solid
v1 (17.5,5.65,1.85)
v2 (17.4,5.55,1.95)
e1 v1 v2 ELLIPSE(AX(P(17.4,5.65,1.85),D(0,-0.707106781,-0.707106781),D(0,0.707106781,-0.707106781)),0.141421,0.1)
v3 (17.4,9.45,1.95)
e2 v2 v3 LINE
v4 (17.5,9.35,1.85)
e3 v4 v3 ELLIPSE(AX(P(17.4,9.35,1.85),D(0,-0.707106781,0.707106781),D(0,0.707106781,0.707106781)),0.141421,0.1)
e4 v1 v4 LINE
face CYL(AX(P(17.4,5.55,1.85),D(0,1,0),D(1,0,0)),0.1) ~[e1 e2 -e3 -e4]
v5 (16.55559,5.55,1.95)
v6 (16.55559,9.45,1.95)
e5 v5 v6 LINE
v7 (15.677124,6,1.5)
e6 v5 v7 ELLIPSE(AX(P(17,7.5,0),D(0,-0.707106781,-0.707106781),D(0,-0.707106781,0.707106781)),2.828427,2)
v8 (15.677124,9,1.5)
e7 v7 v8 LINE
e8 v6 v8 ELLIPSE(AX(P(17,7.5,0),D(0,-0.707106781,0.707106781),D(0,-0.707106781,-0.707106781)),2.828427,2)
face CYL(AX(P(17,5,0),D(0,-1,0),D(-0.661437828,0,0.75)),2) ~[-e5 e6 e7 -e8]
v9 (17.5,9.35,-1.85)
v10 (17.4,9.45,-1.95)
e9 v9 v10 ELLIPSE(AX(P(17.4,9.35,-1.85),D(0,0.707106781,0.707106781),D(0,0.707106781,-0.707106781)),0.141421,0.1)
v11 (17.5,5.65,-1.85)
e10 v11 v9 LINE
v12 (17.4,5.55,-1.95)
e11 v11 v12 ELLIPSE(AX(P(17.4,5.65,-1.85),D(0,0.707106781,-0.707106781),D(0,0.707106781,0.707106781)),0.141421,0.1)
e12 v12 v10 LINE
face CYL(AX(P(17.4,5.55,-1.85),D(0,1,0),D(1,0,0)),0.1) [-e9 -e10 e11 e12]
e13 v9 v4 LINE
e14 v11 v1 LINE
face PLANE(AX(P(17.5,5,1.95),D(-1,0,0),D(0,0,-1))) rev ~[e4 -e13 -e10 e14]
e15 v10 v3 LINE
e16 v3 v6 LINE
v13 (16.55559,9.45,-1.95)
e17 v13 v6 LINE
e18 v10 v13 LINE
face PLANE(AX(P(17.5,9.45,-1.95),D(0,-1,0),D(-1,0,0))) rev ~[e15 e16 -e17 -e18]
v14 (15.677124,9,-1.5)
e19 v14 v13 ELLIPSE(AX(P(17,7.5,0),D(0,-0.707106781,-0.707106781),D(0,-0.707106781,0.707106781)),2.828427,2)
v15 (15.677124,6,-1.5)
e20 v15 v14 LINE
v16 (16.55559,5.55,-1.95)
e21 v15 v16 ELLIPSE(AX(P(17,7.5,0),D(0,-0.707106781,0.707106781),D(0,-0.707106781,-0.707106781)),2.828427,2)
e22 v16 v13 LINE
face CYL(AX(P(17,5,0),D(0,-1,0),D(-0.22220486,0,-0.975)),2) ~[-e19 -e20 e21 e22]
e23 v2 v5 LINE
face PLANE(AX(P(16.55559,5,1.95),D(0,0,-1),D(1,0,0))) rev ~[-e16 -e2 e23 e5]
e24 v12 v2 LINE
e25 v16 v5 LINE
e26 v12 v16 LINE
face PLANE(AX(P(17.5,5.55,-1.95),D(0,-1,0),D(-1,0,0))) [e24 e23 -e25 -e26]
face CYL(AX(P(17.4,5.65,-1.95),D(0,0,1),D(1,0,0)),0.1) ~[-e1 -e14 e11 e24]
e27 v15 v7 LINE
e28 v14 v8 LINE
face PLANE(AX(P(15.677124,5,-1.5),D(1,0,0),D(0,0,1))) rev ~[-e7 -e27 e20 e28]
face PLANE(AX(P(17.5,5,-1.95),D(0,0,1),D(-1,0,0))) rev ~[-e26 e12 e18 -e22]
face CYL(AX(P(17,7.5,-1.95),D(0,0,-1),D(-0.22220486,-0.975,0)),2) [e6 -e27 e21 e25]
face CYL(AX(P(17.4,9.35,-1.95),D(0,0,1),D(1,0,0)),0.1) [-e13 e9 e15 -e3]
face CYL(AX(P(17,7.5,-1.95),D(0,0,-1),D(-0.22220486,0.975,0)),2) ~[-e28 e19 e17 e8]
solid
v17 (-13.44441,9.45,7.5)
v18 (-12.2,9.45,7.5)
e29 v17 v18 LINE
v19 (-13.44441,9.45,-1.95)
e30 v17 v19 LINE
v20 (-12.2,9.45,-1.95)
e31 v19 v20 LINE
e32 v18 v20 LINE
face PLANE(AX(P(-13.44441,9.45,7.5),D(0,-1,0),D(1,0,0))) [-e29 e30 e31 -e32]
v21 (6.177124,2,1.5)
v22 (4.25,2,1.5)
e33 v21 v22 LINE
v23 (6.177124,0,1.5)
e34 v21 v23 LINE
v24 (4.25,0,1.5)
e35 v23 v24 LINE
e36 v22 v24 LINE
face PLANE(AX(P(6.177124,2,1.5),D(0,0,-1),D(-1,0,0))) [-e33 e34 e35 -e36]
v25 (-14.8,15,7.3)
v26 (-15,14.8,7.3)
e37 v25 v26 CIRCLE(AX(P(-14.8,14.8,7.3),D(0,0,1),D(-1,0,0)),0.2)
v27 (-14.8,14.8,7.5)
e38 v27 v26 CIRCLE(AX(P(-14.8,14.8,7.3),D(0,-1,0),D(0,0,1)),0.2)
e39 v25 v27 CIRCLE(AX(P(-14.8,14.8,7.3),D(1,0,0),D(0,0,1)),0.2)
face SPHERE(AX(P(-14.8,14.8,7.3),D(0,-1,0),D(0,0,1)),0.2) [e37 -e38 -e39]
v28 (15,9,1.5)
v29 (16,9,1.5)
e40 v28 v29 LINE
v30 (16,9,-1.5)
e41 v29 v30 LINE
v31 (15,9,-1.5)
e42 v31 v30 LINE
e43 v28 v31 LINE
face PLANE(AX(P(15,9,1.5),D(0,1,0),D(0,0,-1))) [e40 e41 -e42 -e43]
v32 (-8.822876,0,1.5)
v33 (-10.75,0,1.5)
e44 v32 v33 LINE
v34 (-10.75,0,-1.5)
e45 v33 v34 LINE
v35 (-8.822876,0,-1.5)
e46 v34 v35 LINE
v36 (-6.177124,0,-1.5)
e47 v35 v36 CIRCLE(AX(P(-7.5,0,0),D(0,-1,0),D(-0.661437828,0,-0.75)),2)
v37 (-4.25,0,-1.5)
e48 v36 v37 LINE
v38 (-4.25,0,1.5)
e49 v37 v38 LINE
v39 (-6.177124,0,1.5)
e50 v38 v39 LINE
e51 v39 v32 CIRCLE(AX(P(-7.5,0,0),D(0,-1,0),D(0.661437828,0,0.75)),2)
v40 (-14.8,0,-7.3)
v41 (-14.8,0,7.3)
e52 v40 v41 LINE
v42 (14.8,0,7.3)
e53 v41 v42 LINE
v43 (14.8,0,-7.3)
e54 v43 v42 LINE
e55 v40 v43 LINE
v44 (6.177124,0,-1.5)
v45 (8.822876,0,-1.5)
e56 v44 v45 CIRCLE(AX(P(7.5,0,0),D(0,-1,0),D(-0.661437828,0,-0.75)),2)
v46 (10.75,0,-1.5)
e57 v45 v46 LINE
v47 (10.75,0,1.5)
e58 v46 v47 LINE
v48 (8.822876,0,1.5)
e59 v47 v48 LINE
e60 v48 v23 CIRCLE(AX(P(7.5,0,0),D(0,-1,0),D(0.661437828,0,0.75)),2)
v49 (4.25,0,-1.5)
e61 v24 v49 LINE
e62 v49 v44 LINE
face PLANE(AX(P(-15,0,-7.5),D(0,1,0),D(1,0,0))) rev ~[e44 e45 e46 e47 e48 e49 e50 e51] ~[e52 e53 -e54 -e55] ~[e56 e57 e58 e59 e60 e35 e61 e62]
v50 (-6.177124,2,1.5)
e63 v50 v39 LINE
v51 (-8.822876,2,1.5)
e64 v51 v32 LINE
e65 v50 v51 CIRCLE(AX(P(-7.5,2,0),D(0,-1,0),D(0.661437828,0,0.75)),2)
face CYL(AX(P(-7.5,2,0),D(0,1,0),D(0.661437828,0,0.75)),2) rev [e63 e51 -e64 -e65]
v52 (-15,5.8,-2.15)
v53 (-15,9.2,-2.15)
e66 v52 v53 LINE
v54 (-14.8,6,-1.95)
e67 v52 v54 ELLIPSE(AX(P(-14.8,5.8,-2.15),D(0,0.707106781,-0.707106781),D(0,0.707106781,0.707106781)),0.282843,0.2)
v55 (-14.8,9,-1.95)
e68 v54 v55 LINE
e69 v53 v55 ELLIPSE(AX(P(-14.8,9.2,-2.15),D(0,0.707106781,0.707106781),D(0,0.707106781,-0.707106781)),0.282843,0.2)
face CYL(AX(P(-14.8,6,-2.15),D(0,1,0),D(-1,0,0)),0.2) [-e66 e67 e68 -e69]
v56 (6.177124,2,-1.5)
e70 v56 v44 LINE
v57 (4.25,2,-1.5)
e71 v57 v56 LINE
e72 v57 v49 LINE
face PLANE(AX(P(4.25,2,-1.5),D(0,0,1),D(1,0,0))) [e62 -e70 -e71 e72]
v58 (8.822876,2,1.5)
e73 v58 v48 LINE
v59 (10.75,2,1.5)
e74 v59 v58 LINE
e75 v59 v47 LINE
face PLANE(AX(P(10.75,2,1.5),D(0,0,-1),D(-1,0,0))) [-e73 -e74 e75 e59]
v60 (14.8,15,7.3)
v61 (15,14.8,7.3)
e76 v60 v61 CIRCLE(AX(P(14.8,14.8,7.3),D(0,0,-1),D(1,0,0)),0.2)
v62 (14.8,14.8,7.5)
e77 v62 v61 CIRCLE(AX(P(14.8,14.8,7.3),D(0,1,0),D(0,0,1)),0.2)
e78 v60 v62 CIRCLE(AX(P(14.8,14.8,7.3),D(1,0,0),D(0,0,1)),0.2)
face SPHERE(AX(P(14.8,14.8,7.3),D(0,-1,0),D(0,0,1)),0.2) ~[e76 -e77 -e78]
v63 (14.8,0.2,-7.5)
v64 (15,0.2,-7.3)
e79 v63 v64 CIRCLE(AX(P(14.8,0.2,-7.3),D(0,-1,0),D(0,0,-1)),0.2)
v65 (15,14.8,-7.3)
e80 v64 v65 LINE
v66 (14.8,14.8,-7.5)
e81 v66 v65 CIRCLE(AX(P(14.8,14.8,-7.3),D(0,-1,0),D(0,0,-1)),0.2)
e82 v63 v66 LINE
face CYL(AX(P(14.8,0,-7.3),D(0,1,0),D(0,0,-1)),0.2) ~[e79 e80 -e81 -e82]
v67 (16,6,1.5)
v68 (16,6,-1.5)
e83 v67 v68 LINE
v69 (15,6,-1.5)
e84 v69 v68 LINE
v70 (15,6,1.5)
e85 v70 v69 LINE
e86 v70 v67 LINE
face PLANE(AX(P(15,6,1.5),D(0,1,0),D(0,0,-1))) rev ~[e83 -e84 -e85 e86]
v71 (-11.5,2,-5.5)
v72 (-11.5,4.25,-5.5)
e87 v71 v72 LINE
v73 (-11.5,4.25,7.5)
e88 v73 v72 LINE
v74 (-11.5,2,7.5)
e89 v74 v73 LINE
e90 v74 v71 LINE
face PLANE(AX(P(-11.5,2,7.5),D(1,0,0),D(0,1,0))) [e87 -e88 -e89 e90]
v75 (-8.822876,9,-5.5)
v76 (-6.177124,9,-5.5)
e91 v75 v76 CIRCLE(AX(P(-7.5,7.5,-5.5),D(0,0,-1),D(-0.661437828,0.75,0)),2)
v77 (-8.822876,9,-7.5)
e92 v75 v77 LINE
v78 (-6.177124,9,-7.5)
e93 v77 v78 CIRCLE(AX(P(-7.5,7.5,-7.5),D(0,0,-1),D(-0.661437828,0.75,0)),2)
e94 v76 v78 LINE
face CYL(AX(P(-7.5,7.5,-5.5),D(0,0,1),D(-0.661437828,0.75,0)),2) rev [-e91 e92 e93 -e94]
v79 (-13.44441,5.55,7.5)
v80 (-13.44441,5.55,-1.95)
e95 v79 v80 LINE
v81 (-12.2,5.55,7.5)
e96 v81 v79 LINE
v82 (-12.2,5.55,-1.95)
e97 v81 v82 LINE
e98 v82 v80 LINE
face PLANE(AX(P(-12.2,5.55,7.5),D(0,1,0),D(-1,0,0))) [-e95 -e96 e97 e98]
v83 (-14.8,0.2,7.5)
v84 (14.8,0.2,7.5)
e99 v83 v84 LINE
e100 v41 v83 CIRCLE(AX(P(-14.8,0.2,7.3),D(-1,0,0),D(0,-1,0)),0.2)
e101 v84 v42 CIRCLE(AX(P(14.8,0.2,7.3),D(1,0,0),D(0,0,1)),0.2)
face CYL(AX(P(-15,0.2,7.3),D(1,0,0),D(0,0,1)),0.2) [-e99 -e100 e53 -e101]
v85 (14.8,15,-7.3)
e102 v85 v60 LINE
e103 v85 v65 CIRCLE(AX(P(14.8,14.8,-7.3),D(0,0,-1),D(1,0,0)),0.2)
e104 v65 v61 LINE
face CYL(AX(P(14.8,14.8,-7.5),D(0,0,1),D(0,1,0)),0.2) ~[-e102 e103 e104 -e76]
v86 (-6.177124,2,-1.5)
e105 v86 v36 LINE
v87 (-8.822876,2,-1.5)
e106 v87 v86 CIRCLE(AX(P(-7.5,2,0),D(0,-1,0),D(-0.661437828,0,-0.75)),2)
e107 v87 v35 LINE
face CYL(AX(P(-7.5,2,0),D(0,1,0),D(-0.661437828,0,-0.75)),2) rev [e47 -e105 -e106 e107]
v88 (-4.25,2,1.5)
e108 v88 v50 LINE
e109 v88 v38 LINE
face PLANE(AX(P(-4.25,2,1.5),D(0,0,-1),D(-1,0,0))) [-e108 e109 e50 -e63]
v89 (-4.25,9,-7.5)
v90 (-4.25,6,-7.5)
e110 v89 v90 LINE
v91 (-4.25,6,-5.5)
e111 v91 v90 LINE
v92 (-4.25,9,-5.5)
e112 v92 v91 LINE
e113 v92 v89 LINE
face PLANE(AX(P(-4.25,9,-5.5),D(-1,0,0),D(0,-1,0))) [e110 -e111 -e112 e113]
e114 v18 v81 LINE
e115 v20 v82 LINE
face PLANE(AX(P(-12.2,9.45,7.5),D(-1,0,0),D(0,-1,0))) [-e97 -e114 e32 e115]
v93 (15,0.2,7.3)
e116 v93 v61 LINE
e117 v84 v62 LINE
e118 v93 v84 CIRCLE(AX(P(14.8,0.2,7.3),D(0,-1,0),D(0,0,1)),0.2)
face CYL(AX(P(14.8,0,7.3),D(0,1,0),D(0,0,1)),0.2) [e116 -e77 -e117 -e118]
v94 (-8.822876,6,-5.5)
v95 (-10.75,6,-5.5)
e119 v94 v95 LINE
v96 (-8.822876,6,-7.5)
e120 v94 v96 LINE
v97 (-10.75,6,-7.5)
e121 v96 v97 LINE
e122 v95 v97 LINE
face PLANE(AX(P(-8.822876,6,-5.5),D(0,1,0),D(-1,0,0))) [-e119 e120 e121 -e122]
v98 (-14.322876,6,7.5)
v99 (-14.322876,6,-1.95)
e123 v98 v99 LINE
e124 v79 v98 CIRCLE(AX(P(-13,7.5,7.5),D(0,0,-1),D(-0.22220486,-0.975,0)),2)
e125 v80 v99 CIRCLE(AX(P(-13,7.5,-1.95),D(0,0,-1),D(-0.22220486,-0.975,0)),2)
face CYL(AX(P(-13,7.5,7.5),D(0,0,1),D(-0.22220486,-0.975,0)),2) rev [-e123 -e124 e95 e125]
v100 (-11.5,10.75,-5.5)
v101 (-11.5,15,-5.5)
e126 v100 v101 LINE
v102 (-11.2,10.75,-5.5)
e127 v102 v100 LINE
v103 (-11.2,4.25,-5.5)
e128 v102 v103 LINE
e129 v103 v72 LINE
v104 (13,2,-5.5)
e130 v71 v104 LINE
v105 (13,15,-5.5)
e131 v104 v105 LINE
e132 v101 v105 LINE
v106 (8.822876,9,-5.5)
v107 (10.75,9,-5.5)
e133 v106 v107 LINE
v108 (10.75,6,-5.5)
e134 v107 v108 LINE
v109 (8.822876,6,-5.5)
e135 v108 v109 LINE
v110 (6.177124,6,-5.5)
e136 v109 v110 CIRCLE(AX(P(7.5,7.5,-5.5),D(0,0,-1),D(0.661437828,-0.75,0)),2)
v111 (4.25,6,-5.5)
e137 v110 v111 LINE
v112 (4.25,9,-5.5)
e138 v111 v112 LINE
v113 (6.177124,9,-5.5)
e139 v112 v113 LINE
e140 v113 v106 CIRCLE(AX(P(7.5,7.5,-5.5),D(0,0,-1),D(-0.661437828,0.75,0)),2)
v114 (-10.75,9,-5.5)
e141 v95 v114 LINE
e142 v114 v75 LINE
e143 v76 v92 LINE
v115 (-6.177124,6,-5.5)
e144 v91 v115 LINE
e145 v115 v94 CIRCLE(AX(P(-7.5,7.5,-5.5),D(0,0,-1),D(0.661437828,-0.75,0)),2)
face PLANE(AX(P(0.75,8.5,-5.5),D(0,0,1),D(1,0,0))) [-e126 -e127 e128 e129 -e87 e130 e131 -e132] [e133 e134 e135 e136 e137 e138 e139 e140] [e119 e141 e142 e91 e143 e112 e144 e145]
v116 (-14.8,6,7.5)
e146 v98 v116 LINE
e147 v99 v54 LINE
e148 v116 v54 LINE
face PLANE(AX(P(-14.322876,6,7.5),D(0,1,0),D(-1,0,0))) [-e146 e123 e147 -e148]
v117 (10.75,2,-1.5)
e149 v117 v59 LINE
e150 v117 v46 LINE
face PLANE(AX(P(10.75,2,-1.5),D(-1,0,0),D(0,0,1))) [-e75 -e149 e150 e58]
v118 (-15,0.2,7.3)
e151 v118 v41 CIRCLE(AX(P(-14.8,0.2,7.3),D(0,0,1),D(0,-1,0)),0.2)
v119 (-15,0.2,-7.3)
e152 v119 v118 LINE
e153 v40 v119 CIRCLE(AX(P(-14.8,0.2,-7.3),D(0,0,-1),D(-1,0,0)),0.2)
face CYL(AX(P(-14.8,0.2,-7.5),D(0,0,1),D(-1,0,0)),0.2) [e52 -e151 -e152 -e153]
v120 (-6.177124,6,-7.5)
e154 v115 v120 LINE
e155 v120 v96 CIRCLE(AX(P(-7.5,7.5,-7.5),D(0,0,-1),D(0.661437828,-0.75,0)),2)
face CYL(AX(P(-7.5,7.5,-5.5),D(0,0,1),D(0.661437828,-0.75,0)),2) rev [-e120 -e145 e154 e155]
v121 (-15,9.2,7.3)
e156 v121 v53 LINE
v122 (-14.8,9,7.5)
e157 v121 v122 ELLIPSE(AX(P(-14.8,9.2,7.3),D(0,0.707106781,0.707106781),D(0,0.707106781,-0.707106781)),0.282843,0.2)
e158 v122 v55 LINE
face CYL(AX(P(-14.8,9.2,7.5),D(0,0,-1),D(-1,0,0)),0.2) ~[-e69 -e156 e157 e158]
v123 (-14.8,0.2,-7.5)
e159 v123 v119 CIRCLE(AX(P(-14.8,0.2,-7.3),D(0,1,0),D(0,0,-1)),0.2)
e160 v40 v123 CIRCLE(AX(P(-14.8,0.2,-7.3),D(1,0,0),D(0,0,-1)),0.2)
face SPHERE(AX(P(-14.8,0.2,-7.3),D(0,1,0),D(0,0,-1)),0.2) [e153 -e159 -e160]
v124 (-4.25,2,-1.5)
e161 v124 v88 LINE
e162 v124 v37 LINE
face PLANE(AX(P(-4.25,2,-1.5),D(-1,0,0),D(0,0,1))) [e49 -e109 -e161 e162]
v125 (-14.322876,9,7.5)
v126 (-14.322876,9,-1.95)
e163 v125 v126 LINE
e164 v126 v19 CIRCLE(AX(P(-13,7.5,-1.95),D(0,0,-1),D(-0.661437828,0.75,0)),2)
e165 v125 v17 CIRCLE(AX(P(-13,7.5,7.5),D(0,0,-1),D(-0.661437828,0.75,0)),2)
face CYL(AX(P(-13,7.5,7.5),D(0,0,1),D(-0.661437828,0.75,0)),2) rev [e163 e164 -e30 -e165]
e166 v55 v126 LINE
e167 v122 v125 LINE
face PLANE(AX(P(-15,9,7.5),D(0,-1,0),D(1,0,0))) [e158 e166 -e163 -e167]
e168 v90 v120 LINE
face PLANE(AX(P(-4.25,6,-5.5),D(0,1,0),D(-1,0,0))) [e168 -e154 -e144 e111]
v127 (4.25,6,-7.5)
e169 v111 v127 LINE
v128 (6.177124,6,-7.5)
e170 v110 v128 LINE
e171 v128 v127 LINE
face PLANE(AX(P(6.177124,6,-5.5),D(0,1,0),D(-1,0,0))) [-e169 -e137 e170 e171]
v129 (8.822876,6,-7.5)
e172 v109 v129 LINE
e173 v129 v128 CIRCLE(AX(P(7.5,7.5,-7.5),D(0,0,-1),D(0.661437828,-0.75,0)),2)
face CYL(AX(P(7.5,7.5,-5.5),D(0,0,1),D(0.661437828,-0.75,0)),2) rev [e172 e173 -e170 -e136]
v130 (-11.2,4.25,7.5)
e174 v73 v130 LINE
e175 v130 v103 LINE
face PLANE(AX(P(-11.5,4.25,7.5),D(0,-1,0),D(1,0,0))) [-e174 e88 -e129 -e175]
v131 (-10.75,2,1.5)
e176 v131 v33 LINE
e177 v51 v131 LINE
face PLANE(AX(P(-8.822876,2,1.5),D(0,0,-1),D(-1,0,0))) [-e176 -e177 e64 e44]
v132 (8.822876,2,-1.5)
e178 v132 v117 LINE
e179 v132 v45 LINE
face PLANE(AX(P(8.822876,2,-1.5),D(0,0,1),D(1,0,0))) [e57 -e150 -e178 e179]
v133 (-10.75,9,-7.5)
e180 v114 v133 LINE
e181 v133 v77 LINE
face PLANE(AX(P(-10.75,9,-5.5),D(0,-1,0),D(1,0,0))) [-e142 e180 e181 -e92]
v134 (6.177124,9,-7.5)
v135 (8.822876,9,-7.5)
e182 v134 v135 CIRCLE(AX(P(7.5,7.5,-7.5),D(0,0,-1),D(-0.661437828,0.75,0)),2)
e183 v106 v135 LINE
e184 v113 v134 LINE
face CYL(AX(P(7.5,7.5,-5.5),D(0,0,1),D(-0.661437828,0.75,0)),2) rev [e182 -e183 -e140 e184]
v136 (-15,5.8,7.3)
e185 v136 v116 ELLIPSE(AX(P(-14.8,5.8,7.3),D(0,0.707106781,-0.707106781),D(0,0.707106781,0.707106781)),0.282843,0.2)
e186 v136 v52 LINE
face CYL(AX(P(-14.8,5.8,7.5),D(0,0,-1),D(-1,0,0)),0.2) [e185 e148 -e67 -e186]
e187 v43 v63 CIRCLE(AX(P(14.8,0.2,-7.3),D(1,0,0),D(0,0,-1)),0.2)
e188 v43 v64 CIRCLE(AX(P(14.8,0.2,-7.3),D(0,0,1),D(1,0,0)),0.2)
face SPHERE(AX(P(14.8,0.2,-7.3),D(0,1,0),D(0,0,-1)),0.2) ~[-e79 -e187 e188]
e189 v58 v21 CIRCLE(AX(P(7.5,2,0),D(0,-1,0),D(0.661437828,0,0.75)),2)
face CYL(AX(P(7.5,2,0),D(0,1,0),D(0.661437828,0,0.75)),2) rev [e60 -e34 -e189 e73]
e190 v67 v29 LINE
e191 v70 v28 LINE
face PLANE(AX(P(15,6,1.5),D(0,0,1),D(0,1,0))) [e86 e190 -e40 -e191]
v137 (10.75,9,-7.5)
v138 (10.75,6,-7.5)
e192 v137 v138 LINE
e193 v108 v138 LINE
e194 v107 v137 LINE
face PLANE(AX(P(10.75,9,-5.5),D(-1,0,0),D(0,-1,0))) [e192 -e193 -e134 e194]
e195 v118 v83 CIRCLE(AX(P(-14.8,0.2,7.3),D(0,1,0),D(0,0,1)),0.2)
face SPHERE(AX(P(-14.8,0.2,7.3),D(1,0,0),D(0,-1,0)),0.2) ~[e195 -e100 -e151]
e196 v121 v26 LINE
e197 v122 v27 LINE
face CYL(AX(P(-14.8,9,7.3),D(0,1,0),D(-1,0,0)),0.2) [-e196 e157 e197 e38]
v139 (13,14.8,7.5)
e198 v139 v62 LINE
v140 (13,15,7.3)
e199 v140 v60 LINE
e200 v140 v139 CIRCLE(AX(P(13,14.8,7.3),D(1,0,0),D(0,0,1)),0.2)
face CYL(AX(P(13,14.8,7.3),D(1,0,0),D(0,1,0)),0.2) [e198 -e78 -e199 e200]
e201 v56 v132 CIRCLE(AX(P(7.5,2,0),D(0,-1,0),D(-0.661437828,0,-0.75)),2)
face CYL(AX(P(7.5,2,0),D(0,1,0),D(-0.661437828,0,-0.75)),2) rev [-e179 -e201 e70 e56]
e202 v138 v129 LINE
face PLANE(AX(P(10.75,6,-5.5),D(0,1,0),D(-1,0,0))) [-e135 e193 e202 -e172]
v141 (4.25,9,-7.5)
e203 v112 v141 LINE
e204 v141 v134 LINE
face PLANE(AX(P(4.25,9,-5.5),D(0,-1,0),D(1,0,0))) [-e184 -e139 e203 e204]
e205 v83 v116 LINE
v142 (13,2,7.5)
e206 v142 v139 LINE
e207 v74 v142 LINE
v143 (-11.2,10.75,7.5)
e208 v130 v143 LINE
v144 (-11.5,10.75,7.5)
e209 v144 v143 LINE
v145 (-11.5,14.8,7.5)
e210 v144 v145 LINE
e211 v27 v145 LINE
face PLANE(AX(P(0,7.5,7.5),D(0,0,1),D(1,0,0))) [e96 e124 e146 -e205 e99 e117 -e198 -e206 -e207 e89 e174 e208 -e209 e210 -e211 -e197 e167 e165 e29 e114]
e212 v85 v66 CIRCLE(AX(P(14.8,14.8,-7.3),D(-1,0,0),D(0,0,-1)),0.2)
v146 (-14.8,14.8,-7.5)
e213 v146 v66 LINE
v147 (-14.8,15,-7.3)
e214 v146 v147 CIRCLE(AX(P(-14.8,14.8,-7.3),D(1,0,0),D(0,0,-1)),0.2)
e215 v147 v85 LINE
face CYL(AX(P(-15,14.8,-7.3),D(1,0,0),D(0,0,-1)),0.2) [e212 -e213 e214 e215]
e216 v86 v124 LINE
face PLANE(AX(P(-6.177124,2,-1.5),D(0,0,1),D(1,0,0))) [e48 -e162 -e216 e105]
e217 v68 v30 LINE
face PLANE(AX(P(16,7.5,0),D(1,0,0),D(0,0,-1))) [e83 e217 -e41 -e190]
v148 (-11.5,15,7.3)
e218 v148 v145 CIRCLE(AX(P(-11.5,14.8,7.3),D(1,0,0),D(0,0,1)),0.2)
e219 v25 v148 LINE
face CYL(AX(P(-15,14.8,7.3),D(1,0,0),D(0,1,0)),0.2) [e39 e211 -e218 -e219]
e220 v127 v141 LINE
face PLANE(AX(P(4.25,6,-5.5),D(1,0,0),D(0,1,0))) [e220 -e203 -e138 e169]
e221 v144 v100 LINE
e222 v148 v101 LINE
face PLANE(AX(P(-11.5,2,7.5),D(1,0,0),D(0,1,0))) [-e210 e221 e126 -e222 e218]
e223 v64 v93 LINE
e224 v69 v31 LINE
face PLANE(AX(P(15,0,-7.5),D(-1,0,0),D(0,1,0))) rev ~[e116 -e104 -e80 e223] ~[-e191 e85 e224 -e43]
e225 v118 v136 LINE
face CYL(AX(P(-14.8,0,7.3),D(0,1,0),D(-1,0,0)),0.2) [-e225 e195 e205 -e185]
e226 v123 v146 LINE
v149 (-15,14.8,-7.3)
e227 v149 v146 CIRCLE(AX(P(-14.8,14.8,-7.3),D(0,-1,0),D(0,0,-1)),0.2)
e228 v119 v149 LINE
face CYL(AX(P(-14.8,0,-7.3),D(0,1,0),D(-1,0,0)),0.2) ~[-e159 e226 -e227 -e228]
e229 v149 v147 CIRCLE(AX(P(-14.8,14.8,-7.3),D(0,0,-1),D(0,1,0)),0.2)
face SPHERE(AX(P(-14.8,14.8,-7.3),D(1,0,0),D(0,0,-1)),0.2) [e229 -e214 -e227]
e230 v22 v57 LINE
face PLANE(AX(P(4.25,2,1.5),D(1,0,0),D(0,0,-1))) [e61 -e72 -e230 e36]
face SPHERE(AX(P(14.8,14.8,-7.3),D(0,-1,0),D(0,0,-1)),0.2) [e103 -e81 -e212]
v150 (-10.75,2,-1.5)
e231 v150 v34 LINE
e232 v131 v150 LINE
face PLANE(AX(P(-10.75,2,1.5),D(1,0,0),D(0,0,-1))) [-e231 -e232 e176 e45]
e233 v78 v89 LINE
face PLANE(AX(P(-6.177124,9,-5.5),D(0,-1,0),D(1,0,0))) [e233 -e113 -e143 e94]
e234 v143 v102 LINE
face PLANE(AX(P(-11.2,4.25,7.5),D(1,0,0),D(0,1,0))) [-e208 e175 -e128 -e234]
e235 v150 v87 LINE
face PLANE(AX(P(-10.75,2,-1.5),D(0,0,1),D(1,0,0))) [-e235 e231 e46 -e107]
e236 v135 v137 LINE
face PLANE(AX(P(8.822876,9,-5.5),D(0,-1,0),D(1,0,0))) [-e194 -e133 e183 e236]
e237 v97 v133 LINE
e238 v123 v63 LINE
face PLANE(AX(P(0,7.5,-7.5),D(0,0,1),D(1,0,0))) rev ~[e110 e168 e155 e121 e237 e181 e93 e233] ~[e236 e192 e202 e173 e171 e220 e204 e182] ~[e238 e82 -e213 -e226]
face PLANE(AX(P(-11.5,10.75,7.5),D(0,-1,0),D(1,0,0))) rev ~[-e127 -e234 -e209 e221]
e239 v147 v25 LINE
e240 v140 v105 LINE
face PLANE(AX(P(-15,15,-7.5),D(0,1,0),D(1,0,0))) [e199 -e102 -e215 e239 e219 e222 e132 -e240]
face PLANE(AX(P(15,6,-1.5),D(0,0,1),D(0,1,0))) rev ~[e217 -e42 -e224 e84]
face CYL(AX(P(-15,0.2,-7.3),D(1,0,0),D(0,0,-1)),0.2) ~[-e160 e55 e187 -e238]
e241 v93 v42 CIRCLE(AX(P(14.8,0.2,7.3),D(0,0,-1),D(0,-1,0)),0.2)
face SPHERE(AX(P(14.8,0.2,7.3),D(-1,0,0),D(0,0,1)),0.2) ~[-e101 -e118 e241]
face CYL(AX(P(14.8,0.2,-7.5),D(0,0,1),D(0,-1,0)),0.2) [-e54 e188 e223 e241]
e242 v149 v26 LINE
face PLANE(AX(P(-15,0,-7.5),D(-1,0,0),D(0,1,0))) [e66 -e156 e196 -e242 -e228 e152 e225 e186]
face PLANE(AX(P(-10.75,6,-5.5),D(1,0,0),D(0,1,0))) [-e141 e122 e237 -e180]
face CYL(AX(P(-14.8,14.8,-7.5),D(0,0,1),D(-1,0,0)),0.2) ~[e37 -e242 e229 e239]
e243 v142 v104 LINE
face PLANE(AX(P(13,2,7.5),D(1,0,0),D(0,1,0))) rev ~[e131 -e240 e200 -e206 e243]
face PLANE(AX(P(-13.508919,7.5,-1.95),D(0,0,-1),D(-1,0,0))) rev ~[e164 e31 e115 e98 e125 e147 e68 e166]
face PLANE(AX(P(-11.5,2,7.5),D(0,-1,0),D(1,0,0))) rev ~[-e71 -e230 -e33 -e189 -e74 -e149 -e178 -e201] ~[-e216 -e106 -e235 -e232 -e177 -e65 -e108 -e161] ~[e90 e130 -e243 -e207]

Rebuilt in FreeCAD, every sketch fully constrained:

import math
import FreeCAD as App
import Part
import Sketcher
from FreeCAD import Vector


def edges_at(feature, points):
    """Names of the edges that pass closest to the given points."""
    edges = feature.Shape.Edges
    near = lambda p: min(range(len(edges)), key=lambda i: edges[i].distToShape(Part.Vertex(*p))[0])
    return sorted({f"Edge{near(p) + 1}" for p in points})

doc = App.newDocument("Part")
params = doc.addObject("Spreadsheet::Sheet", "Params")
for row, (alias, value) in enumerate([
    ("sketch1_width", "30 mm"),
    ("sketch1_height", "15 mm"),
    ("pad1_length", "7.5 mm"),
    ("pad1_length2", "7.5 mm"),
    ("sketch2_height", "13 mm"),
    ("sketch2_width", "24.5 mm"),
    ("pocket1_length", "13 mm"),
    ("sketch3_width", "3 mm"),
    ("pad2_length", "1 mm"),
    ("sketch4_radius", "2 mm"),
    ("sketch4_height", "3 mm"),
    ("sketch4_height2", "3.9 mm"),
    ("pocket2_length", "9.45 mm"),
    ("sketch5_radius", "2 mm"),
    ("sketch5_height", "3 mm"),
    ("pocket3_length", "2 mm"),
    ("sketch6_width", "0.3 mm"),
    ("sketch6_height", "6.5 mm"),
    ("sketch7_radius", "2 mm"),
    ("sketch7_height", "3 mm"),
    ("pocket4_length", "2 mm"),
    ("fillet_radius", "0.2 mm"),
    ("sketch8_radius", "2 mm"),
    ("sketch8_height", "3 mm"),
    ("sketch8_height2", "3.9 mm"),
    ("pad4_length", "4 mm"),
    ("pad4_length2", "1 mm"),
    ("sketch9_radius", "2 mm"),
    ("sketch9_height", "1 mm"),
    ("sketch9_height2", "0.55 mm"),
    ("pocket5_length", "3.9 mm"),
    ("fillet2_radius", "0.1 mm"),
], start=1):
    params.set(f"A{row}", alias)
    params.set(f"B{row}", "=" + value)
    params.setAlias(f"B{row}", alias)

body = doc.addObject("PartDesign::Body", "Body")

# Sketch on XY plane
sketch1 = doc.addObject("Sketcher::SketchObject", "Sketch")
body.addObject(sketch1)
sketch1.AttachmentSupport = (doc.XY_Plane, [""])
sketch1.MapMode = "FlatFace"
sketch1.addGeometry(Part.LineSegment(Vector(-15, 15, 0), Vector(-15, 0, 0)), False)
sketch1.addGeometry(Part.LineSegment(Vector(-15, 0, 0), Vector(15, 0, 0)), False)
sketch1.addGeometry(Part.LineSegment(Vector(15, 0, 0), Vector(15, 15, 0)), False)
sketch1.addGeometry(Part.LineSegment(Vector(15, 15, 0), Vector(-15, 15, 0)), False)
sketch1.addConstraint(Sketcher.Constraint("Coincident", 0, 2, 1, 1))
sketch1.addConstraint(Sketcher.Constraint("Coincident", 1, 2, 2, 1))
sketch1.addConstraint(Sketcher.Constraint("Coincident", 2, 2, 3, 1))
sketch1.addConstraint(Sketcher.Constraint("Coincident", 3, 2, 0, 1))
sketch1.addConstraint(Sketcher.Constraint("Vertical", 0))
sketch1.addConstraint(Sketcher.Constraint("Horizontal", 1))
sketch1.addConstraint(Sketcher.Constraint("Vertical", 2))
sketch1.addConstraint(Sketcher.Constraint("Horizontal", 3))
sketch1.addConstraint(Sketcher.Constraint("Symmetric", 0, 2, 1, 2, -1, 1))
sketch1.addConstraint(Sketcher.Constraint("DistanceX", 1, 1, 1, 2, 30.0))
sketch1.addConstraint(Sketcher.Constraint("DistanceY", 0, 2, 0, 1, 15.0))
sketch1.setExpression("Constraints[9]", "Params.sketch1_width")
sketch1.setExpression("Constraints[10]", "Params.sketch1_height")
pad1 = doc.addObject("PartDesign::Pad", "Pad")
body.addObject(pad1)
pad1.Profile = sketch1
pad1.Type = "TwoLengths"
pad1.setExpression("Length", "Params.pad1_length")
pad1.setExpression("Length2", "Params.pad1_length2")

# Sketch on XY plane
sketch2 = doc.addObject("Sketcher::SketchObject", "Sketch001")
body.addObject(sketch2)
sketch2.AttachmentSupport = (doc.XY_Plane, [""])
sketch2.MapMode = "FlatFace"
sketch2.AttachmentOffset = App.Placement(Vector(0, 0, 7.5), App.Rotation())
sketch2.addGeometry(Part.LineSegment(Vector(-12, 15, 0), Vector(-12, 2, 0)), False)
sketch2.addGeometry(Part.LineSegment(Vector(-12, 2, 0), Vector(13, 2, 0)), False)
sketch2.addGeometry(Part.LineSegment(Vector(13, 2, 0), Vector(13, 15, 0)), False)
sketch2.addGeometry(Part.LineSegment(Vector(13, 15, 0), Vector(-12, 15, 0)), False)
sketch2.addConstraint(Sketcher.Constraint("Coincident", 0, 2, 1, 1))
sketch2.addConstraint(Sketcher.Constraint("Coincident", 1, 2, 2, 1))
sketch2.addConstraint(Sketcher.Constraint("Coincident", 2, 2, 3, 1))
sketch2.addConstraint(Sketcher.Constraint("Coincident", 3, 2, 0, 1))
sketch2.addConstraint(Sketcher.Constraint("Vertical", 0))
sketch2.addConstraint(Sketcher.Constraint("Horizontal", 1))
sketch2.addConstraint(Sketcher.Constraint("Vertical", 2))
sketch2.addConstraint(Sketcher.Constraint("Horizontal", 3))
sketch2.addConstraint(Sketcher.Constraint("DistanceY", 0, 2, 0, 1, 13.0))
sketch2.addConstraint(Sketcher.Constraint("DistanceX", 1, 1, 1, 2, 24.5))
sketch2.addConstraint(Sketcher.Constraint("DistanceY", -1, 1, 0, 2, 2.0))
sketch2.addConstraint(Sketcher.Constraint("DistanceX", -1, 1, 1, 2, 13.0))
sketch2.setExpression("Constraints[8]", "Params.sketch2_height")
sketch2.setExpression("Constraints[9]", "Params.sketch2_width")
pocket1 = doc.addObject("PartDesign::Pocket", "Pocket")
body.addObject(pocket1)
pocket1.Profile = sketch2
pocket1.setExpression("Length", "Params.pocket1_length")

# Sketch on YZ plane
sketch3 = doc.addObject("Sketcher::SketchObject", "Sketch002")
body.addObject(sketch3)
sketch3.AttachmentSupport = (doc.YZ_Plane, [""])
sketch3.MapMode = "FlatFace"
sketch3.AttachmentOffset = App.Placement(Vector(0, 0, 15), App.Rotation())
sketch3.addGeometry(Part.LineSegment(Vector(9, 1.5, 0), Vector(6, 1.5, 0)), False)
sketch3.addGeometry(Part.LineSegment(Vector(6, 1.5, 0), Vector(6, -1.5, 0)), False)
sketch3.addGeometry(Part.LineSegment(Vector(6, -1.5, 0), Vector(9, -1.5, 0)), False)
sketch3.addGeometry(Part.LineSegment(Vector(9, -1.5, 0), Vector(9, 1.5, 0)), False)
sketch3.addConstraint(Sketcher.Constraint("Coincident", 0, 2, 1, 1))
sketch3.addConstraint(Sketcher.Constraint("Coincident", 1, 2, 2, 1))
sketch3.addConstraint(Sketcher.Constraint("Coincident", 2, 2, 3, 1))
sketch3.addConstraint(Sketcher.Constraint("Coincident", 3, 2, 0, 1))
sketch3.addConstraint(Sketcher.Constraint("Horizontal", 0))
sketch3.addConstraint(Sketcher.Constraint("Vertical", 1))
sketch3.addConstraint(Sketcher.Constraint("Horizontal", 2))
sketch3.addConstraint(Sketcher.Constraint("Vertical", 3))
sketch3.addConstraint(Sketcher.Constraint("Equal", 2, 1))
sketch3.addConstraint(Sketcher.Constraint("DistanceX", 0, 2, 0, 1, 3.0))
sketch3.addConstraint(Sketcher.Constraint("DistanceX", -1, 1, 0, 2, 6.0))
sketch3.addConstraint(Sketcher.Constraint("DistanceY", -1, 1, 0, 2, 1.5))
sketch3.setExpression("Constraints[9]", "Params.sketch3_width")
pad2 = doc.addObject("PartDesign::Pad", "Pad001")
body.addObject(pad2)
pad2.Profile = sketch3
pad2.setExpression("Length", "Params.pad2_length")

# Sketch on XY plane
sketch4 = doc.addObject("Sketcher::SketchObject", "Sketch003")
body.addObject(sketch4)
sketch4.AttachmentSupport = (doc.XY_Plane, [""])
sketch4.MapMode = "FlatFace"
sketch4.AttachmentOffset = App.Placement(Vector(0, 0, 7.5), App.Rotation())
sketch4.addGeometry(Part.LineSegment(Vector(-14.3, 9, 0), Vector(-15, 9, 0)), False)
sketch4.addGeometry(Part.LineSegment(Vector(-15, 9, 0), Vector(-15, 6, 0)), False)
sketch4.addGeometry(Part.LineSegment(Vector(-15, 6, 0), Vector(-14.3, 6, 0)), False)
sketch4.addGeometry(Part.ArcOfCircle(Part.Circle(Vector(-13, 7.5, 0), Vector(0, 0, 1), 2), math.radians(-131), math.radians(-103)), False)
sketch4.addGeometry(Part.LineSegment(Vector(-13.4, 5.5, 0), Vector(-12.2, 5.5, 0)), False)
sketch4.addGeometry(Part.LineSegment(Vector(-12.2, 5.5, 0), Vector(-12.2, 9.4, 0)), False)
sketch4.addGeometry(Part.LineSegment(Vector(-12.2, 9.4, 0), Vector(-13.4, 9.4, 0)), False)
sketch4.addGeometry(Part.ArcOfCircle(Part.Circle(Vector(-13, 7.5, 0), Vector(0, 0, 1), 2), math.radians(103), math.radians(131)), False)
sketch4.addConstraint(Sketcher.Constraint("Coincident", 0, 2, 1, 1))
sketch4.addConstraint(Sketcher.Constraint("Coincident", 1, 2, 2, 1))
sketch4.addConstraint(Sketcher.Constraint("Coincident", 2, 2, 3, 1))
sketch4.addConstraint(Sketcher.Constraint("Coincident", 3, 2, 4, 1))
sketch4.addConstraint(Sketcher.Constraint("Coincident", 4, 2, 5, 1))
sketch4.addConstraint(Sketcher.Constraint("Coincident", 5, 2, 6, 1))
sketch4.addConstraint(Sketcher.Constraint("Coincident", 6, 2, 7, 1))
sketch4.addConstraint(Sketcher.Constraint("Coincident", 7, 2, 0, 1))
sketch4.addConstraint(Sketcher.Constraint("Horizontal", 0))
sketch4.addConstraint(Sketcher.Constraint("Vertical", 1))
sketch4.addConstraint(Sketcher.Constraint("Horizontal", 2))
sketch4.addConstraint(Sketcher.Constraint("Horizontal", 4))
sketch4.addConstraint(Sketcher.Constraint("Vertical", 5))
sketch4.addConstraint(Sketcher.Constraint("Horizontal", 6))
sketch4.addConstraint(Sketcher.Constraint("Coincident", 7, 3, 3, 3))
sketch4.addConstraint(Sketcher.Constraint("Equal", 3, 7))
sketch4.addConstraint(Sketcher.Constraint("Vertical", 3, 2, 6, 2))
sketch4.addConstraint(Sketcher.Constraint("Vertical", 2, 2, 7, 2))
sketch4.addConstraint(Sketcher.Constraint("Radius", 3, 2.0))
sketch4.addConstraint(Sketcher.Constraint("DistanceY", 1, 2, 1, 1, 3.0))
sketch4.addConstraint(Sketcher.Constraint("DistanceY", 5, 1, 5, 2, 3.9))
sketch4.addConstraint(Sketcher.Constraint("DistanceX", 3, 3, -1, 1, 13.0))
sketch4.addConstraint(Sketcher.Constraint("DistanceX", 0, 2, -1, 1, 15.0))
sketch4.addConstraint(Sketcher.Constraint("DistanceY", -1, 1, 0, 2, 9.0))
sketch4.addConstraint(Sketcher.Constraint("DistanceX", 4, 2, -1, 1, 12.2))
sketch4.setExpression("Constraints[18]", "Params.sketch4_radius")
sketch4.setExpression("Constraints[19]", "Params.sketch4_height")
sketch4.setExpression("Constraints[20]", "Params.sketch4_height2")
pocket2 = doc.addObject("PartDesign::Pocket", "Pocket001")
body.addObject(pocket2)
pocket2.Profile = sketch4
pocket2.setExpression("Length", "Params.pocket2_length")

# Sketch on XY plane
sketch5 = doc.addObject("Sketcher::SketchObject", "Sketch004")
body.addObject(sketch5)
sketch5.AttachmentSupport = (doc.XY_Plane, [""])
sketch5.MapMode = "FlatFace"
sketch5.AttachmentOffset = App.Placement(Vector(0, 0, -5.5), App.Rotation())
sketch5.addGeometry(Part.LineSegment(Vector(-4.2, 9, 0), Vector(-6.2, 9, 0)), False)
sketch5.addGeometry(Part.ArcOfCircle(Part.Circle(Vector(-7.5, 7.5, 0), Vector(0, 0, 1), 2), math.radians(49), math.radians(131)), False)
sketch5.addGeometry(Part.LineSegment(Vector(-8.8, 9, 0), Vector(-10.8, 9, 0)), False)
sketch5.addGeometry(Part.LineSegment(Vector(-10.8, 9, 0), Vector(-10.8, 6, 0)), False)
sketch5.addGeometry(Part.LineSegment(Vector(-10.8, 6, 0), Vector(-8.8, 6, 0)), False)
sketch5.addGeometry(Part.ArcOfCircle(Part.Circle(Vector(-7.5, 7.5, 0), Vector(0, 0, 1), 2), math.radians(-131), math.radians(-49)), False)
sketch5.addGeometry(Part.LineSegment(Vector(-6.2, 6, 0), Vector(-4.2, 6, 0)), False)
sketch5.addGeometry(Part.LineSegment(Vector(-4.2, 6, 0), Vector(-4.2, 9, 0)), False)
sketch5.addGeometry(Part.LineSegment(Vector(6.2, 9, 0), Vector(4.2, 9, 0)), False)
sketch5.addGeometry(Part.LineSegment(Vector(4.2, 9, 0), Vector(4.2, 6, 0)), False)
sketch5.addGeometry(Part.LineSegment(Vector(4.2, 6, 0), Vector(6.2, 6, 0)), False)
sketch5.addGeometry(Part.ArcOfCircle(Part.Circle(Vector(7.5, 7.5, 0), Vector(0, 0, 1), 2), math.radians(-131), math.radians(-49)), False)
sketch5.addGeometry(Part.LineSegment(Vector(8.8, 6, 0), Vector(10.8, 6, 0)), False)
sketch5.addGeometry(Part.LineSegment(Vector(10.8, 6, 0), Vector(10.8, 9, 0)), False)
sketch5.addGeometry(Part.LineSegment(Vector(10.8, 9, 0), Vector(8.8, 9, 0)), False)
sketch5.addGeometry(Part.ArcOfCircle(Part.Circle(Vector(7.5, 7.5, 0), Vector(0, 0, 1), 2), math.radians(49), math.radians(131)), False)
sketch5.addConstraint(Sketcher.Constraint("Coincident", 0, 2, 1, 1))
sketch5.addConstraint(Sketcher.Constraint("Coincident", 1, 2, 2, 1))
sketch5.addConstraint(Sketcher.Constraint("Coincident", 2, 2, 3, 1))
sketch5.addConstraint(Sketcher.Constraint("Coincident", 3, 2, 4, 1))
sketch5.addConstraint(Sketcher.Constraint("Coincident", 4, 2, 5, 1))
sketch5.addConstraint(Sketcher.Constraint("Coincident", 5, 2, 6, 1))
sketch5.addConstraint(Sketcher.Constraint("Coincident", 6, 2, 7, 1))
sketch5.addConstraint(Sketcher.Constraint("Coincident", 7, 2, 0, 1))
sketch5.addConstraint(Sketcher.Constraint("Coincident", 8, 2, 9, 1))
sketch5.addConstraint(Sketcher.Constraint("Coincident", 9, 2, 10, 1))
sketch5.addConstraint(Sketcher.Constraint("Coincident", 10, 2, 11, 1))
sketch5.addConstraint(Sketcher.Constraint("Coincident", 11, 2, 12, 1))
sketch5.addConstraint(Sketcher.Constraint("Coincident", 12, 2, 13, 1))
sketch5.addConstraint(Sketcher.Constraint("Coincident", 13, 2, 14, 1))
sketch5.addConstraint(Sketcher.Constraint("Coincident", 14, 2, 15, 1))
sketch5.addConstraint(Sketcher.Constraint("Coincident", 15, 2, 8, 1))
sketch5.addConstraint(Sketcher.Constraint("Horizontal", 0))
sketch5.addConstraint(Sketcher.Constraint("Horizontal", 2))
sketch5.addConstraint(Sketcher.Constraint("Vertical", 3))
sketch5.addConstraint(Sketcher.Constraint("Horizontal", 4))
sketch5.addConstraint(Sketcher.Constraint("Horizontal", 6))
sketch5.addConstraint(Sketcher.Constraint("Vertical", 7))
sketch5.addConstraint(Sketcher.Constraint("Horizontal", 8))
sketch5.addConstraint(Sketcher.Constraint("Vertical", 9))
sketch5.addConstraint(Sketcher.Constraint("Horizontal", 10))
sketch5.addConstraint(Sketcher.Constraint("Horizontal", 12))
sketch5.addConstraint(Sketcher.Constraint("Vertical", 13))
sketch5.addConstraint(Sketcher.Constraint("Horizontal", 14))
sketch5.addConstraint(Sketcher.Constraint("Coincident", 5, 3, 1, 3))
sketch5.addConstraint(Sketcher.Constraint("Coincident", 15, 3, 11, 3))
sketch5.addConstraint(Sketcher.Constraint("Equal", 1, 5))
sketch5.addConstraint(Sketcher.Constraint("Equal", 5, 11))
sketch5.addConstraint(Sketcher.Constraint("Equal", 11, 15))
sketch5.addConstraint(Sketcher.Constraint("Symmetric", 1, 3, 11, 3, -2))
sketch5.addConstraint(Sketcher.Constraint("Symmetric", 7, 2, 8, 2, -2))
sketch5.addConstraint(Sketcher.Constraint("Symmetric", 3, 2, 12, 2, -2))
sketch5.addConstraint(Sketcher.Constraint("Horizontal", 0, 2, 1, 2))
sketch5.addConstraint(Sketcher.Constraint("Horizontal", 4, 2, 5, 2))
sketch5.addConstraint(Sketcher.Constraint("Horizontal", 6, 2, 9, 2))
sketch5.addConstraint(Sketcher.Constraint("Horizontal", 8, 2, 13, 2))
sketch5.addConstraint(Sketcher.Constraint("Vertical", 1, 2, 4, 2))
sketch5.addConstraint(Sketcher.Constraint("Equal", 0, 2))
sketch5.addConstraint(Sketcher.Constraint("Radius", 1, 2.0))
sketch5.addConstraint(Sketcher.Constraint("DistanceY", 3, 2, 3, 1, 3.0))
sketch5.addConstraint(Sketcher.Constraint("DistanceY", -1, 1, 0, 2, 9.0))
sketch5.addConstraint(Sketcher.Constraint("DistanceX", 1, 3, 11, 3, 15.0))
sketch5.addConstraint(Sketcher.Constraint("DistanceX", 7, 2, 8, 2, 8.5))
sketch5.setExpression("Constraints[42]", "Params.sketch5_radius")
sketch5.setExpression("Constraints[43]", "Params.sketch5_height")
pocket3 = doc.addObject("PartDesign::Pocket", "Pocket002")
body.addObject(pocket3)
pocket3.Profile = sketch5
pocket3.setExpression("Length", "Params.pocket3_length")

# Sketch on XY plane
sketch6 = doc.addObject("Sketcher::SketchObject", "Sketch005")
body.addObject(sketch6)
sketch6.AttachmentSupport = (doc.XY_Plane, [""])
sketch6.MapMode = "FlatFace"
sketch6.AttachmentOffset = App.Placement(Vector(0, 0, 7.5), App.Rotation())
sketch6.addGeometry(Part.LineSegment(Vector(-11.5, 10.75, 0), Vector(-11.5, 4.25, 0)), False)
sketch6.addGeometry(Part.LineSegment(Vector(-11.5, 4.25, 0), Vector(-11.2, 4.25, 0)), False)
sketch6.addGeometry(Part.LineSegment(Vector(-11.2, 4.25, 0), Vector(-11.2, 10.75, 0)), False)
sketch6.addGeometry(Part.LineSegment(Vector(-11.2, 10.75, 0), Vector(-11.5, 10.75, 0)), False)
sketch6.addConstraint(Sketcher.Constraint("Coincident", 0, 2, 1, 1))
sketch6.addConstraint(Sketcher.Constraint("Coincident", 1, 2, 2, 1))
sketch6.addConstraint(Sketcher.Constraint("Coincident", 2, 2, 3, 1))
sketch6.addConstraint(Sketcher.Constraint("Coincident", 3, 2, 0, 1))
sketch6.addConstraint(Sketcher.Constraint("Vertical", 0))
sketch6.addConstraint(Sketcher.Constraint("Horizontal", 1))
sketch6.addConstraint(Sketcher.Constraint("Vertical", 2))
sketch6.addConstraint(Sketcher.Constraint("Horizontal", 3))
sketch6.addConstraint(Sketcher.Constraint("DistanceX", 1, 1, 1, 2, 0.3))
sketch6.addConstraint(Sketcher.Constraint("DistanceY", 0, 2, 0, 1, 6.5))
sketch6.addConstraint(Sketcher.Constraint("DistanceX", 0, 2, -1, 1, 11.5))
sketch6.addConstraint(Sketcher.Constraint("DistanceY", -1, 1, 0, 2, 4.25))
sketch6.setExpression("Constraints[8]", "Params.sketch6_width")
sketch6.setExpression("Constraints[9]", "Params.sketch6_height")
pad3 = doc.addObject("PartDesign::Pad", "Pad002")
body.addObject(pad3)
pad3.Profile = sketch6
pad3.Type = "UpToFirst"
pad3.Reversed = True

# Sketch on XZ plane
sketch7 = doc.addObject("Sketcher::SketchObject", "Sketch006")
body.addObject(sketch7)
sketch7.AttachmentSupport = (doc.XZ_Plane, [""])
sketch7.MapMode = "FlatFace"
sketch7.AttachmentOffset = App.Placement(Vector(0, 0, -2), App.Rotation())
sketch7.addGeometry(Part.LineSegment(Vector(-4.2, -1.5, 0), Vector(-6.2, -1.5, 0)), False)
sketch7.addGeometry(Part.ArcOfCircle(Part.Circle(Vector(-7.5, 0, 0), Vector(0, 0, 1), 2), math.radians(-131), math.radians(-49)), False)
sketch7.addGeometry(Part.LineSegment(Vector(-8.8, -1.5, 0), Vector(-10.8, -1.5, 0)), False)
sketch7.addGeometry(Part.LineSegment(Vector(-10.8, -1.5, 0), Vector(-10.8, 1.5, 0)), False)
sketch7.addGeometry(Part.LineSegment(Vector(-10.8, 1.5, 0), Vector(-8.8, 1.5, 0)), False)
sketch7.addGeometry(Part.ArcOfCircle(Part.Circle(Vector(-7.5, 0, 0), Vector(0, 0, 1), 2), math.radians(49), math.radians(131)), False)
sketch7.addGeometry(Part.LineSegment(Vector(-6.2, 1.5, 0), Vector(-4.2, 1.5, 0)), False)
sketch7.addGeometry(Part.LineSegment(Vector(-4.2, 1.5, 0), Vector(-4.2, -1.5, 0)), False)
sketch7.addGeometry(Part.LineSegment(Vector(6.2, -1.5, 0), Vector(4.2, -1.5, 0)), False)
sketch7.addGeometry(Part.LineSegment(Vector(4.2, -1.5, 0), Vector(4.2, 1.5, 0)), False)
sketch7.addGeometry(Part.LineSegment(Vector(4.2, 1.5, 0), Vector(6.2, 1.5, 0)), False)
sketch7.addGeometry(Part.ArcOfCircle(Part.Circle(Vector(7.5, 0, 0), Vector(0, 0, 1), 2), math.radians(49), math.radians(131)), False)
sketch7.addGeometry(Part.LineSegment(Vector(8.8, 1.5, 0), Vector(10.8, 1.5, 0)), False)
sketch7.addGeometry(Part.LineSegment(Vector(10.8, 1.5, 0), Vector(10.8, -1.5, 0)), False)
sketch7.addGeometry(Part.LineSegment(Vector(10.8, -1.5, 0), Vector(8.8, -1.5, 0)), False)
sketch7.addGeometry(Part.ArcOfCircle(Part.Circle(Vector(7.5, 0, 0), Vector(0, 0, 1), 2), math.radians(-131), math.radians(-49)), False)
sketch7.addConstraint(Sketcher.Constraint("Coincident", 0, 2, 1, 2))
sketch7.addConstraint(Sketcher.Constraint("Coincident", 1, 1, 2, 1))
sketch7.addConstraint(Sketcher.Constraint("Coincident", 2, 2, 3, 1))
sketch7.addConstraint(Sketcher.Constraint("Coincident", 3, 2, 4, 1))
sketch7.addConstraint(Sketcher.Constraint("Coincident", 4, 2, 5, 2))
sketch7.addConstraint(Sketcher.Constraint("Coincident", 5, 1, 6, 1))
sketch7.addConstraint(Sketcher.Constraint("Coincident", 6, 2, 7, 1))
sketch7.addConstraint(Sketcher.Constraint("Coincident", 7, 2, 0, 1))
sketch7.addConstraint(Sketcher.Constraint("Coincident", 8, 2, 9, 1))
sketch7.addConstraint(Sketcher.Constraint("Coincident", 9, 2, 10, 1))
sketch7.addConstraint(Sketcher.Constraint("Coincident", 10, 2, 11, 2))
sketch7.addConstraint(Sketcher.Constraint("Coincident", 11, 1, 12, 1))
sketch7.addConstraint(Sketcher.Constraint("Coincident", 12, 2, 13, 1))
sketch7.addConstraint(Sketcher.Constraint("Coincident", 13, 2, 14, 1))
sketch7.addConstraint(Sketcher.Constraint("Coincident", 14, 2, 15, 2))
sketch7.addConstraint(Sketcher.Constraint("Coincident", 15, 1, 8, 1))
sketch7.addConstraint(Sketcher.Constraint("Horizontal", 0))
sketch7.addConstraint(Sketcher.Constraint("Horizontal", 2))
sketch7.addConstraint(Sketcher.Constraint("Vertical", 3))
sketch7.addConstraint(Sketcher.Constraint("Horizontal", 4))
sketch7.addConstraint(Sketcher.Constraint("Horizontal", 6))
sketch7.addConstraint(Sketcher.Constraint("Vertical", 7))
sketch7.addConstraint(Sketcher.Constraint("Horizontal", 8))
sketch7.addConstraint(Sketcher.Constraint("Vertical", 9))
sketch7.addConstraint(Sketcher.Constraint("Horizontal", 10))
sketch7.addConstraint(Sketcher.Constraint("Horizontal", 12))
sketch7.addConstraint(Sketcher.Constraint("Vertical", 13))
sketch7.addConstraint(Sketcher.Constraint("Horizontal", 14))
sketch7.addConstraint(Sketcher.Constraint("Coincident", 5, 3, 1, 3))
sketch7.addConstraint(Sketcher.Constraint("Coincident", 15, 3, 11, 3))
sketch7.addConstraint(Sketcher.Constraint("Equal", 1, 5))
sketch7.addConstraint(Sketcher.Constraint("Equal", 5, 11))
sketch7.addConstraint(Sketcher.Constraint("Equal", 11, 15))
sketch7.addConstraint(Sketcher.Constraint("Symmetric", 1, 3, 11, 3, -1, 1))
sketch7.addConstraint(Sketcher.Constraint("Symmetric", 6, 2, 8, 2, -1, 1))
sketch7.addConstraint(Sketcher.Constraint("Symmetric", 2, 2, 12, 2, -1, 1))
sketch7.addConstraint(Sketcher.Constraint("Symmetric", 5, 1, 10, 2, -2))
sketch7.addConstraint(Sketcher.Constraint("Horizontal", 0, 2, 1, 1))
sketch7.addConstraint(Sketcher.Constraint("Horizontal", 4, 2, 5, 1))
sketch7.addConstraint(Sketcher.Constraint("Horizontal", 7, 2, 8, 2))
sketch7.addConstraint(Sketcher.Constraint("Horizontal", 8, 2, 13, 2))
sketch7.addConstraint(Sketcher.Constraint("Equal", 0, 2))
sketch7.addConstraint(Sketcher.Constraint("Radius", 1, 2.0))
sketch7.addConstraint(Sketcher.Constraint("DistanceY", 3, 1, 3, 2, 3.0))
sketch7.addConstraint(Sketcher.Constraint("DistanceX", 1, 3, 11, 3, 15.0))
sketch7.addConstraint(Sketcher.Constraint("DistanceX", 7, 2, 8, 2, 8.5))
sketch7.setExpression("Constraints[42]", "Params.sketch7_radius")
sketch7.setExpression("Constraints[43]", "Params.sketch7_height")
pocket4 = doc.addObject("PartDesign::Pocket", "Pocket003")
body.addObject(pocket4)
pocket4.Profile = sketch7
pocket4.setExpression("Length", "Params.pocket4_length")
pocket4.Reversed = True
doc.recompute()

fillet = doc.addObject("PartDesign::Fillet", "Fillet")
body.addObject(fillet)
fillet.Base = (pocket4, edges_at(pocket4, [
    (15, 7.5, -7.5),
    (-15, 12, 7.5),
    (0, 0, 7.5),
    (0, 15, -7.5),
    (15, 7.5, 7.5),
    (14, 15, 7.5),
    (-13.25, 15, 7.5),
    (-15, 7.5, -7.5),
    (0, 0, -7.5),
    (-15, 15, 0),
    (15, 15, 0),
    (15, 0, 0),
    (-15, 0, 0),
    (-15, 3, 7.5),
    (-15, 7.5, -1.95),
    (-15, 6, 2.775),
    (-15, 9, 2.775),
]))
fillet.setExpression("Radius", "Params.fillet_radius")
body2 = doc.addObject("PartDesign::Body", "Body001")

# Sketch on XZ plane
sketch8 = doc.addObject("Sketcher::SketchObject", "Sketch007")
body2.addObject(sketch8)
sketch8.AttachmentSupport = (doc.getObject("XZ_Plane001"), [""])
sketch8.MapMode = "FlatFace"
sketch8.AttachmentOffset = App.Placement(Vector(0, 0, -6), App.Rotation())
sketch8.addGeometry(Part.LineSegment(Vector(17.5, 1.9, 0), Vector(17.5, -1.9, 0)), False)
sketch8.addGeometry(Part.LineSegment(Vector(17.5, -1.9, 0), Vector(16.6, -1.9, 0)), False)
sketch8.addGeometry(Part.ArcOfCircle(Part.Circle(Vector(17, 0, 0), Vector(0, 0, 1), 2), math.radians(-131), math.radians(-103)), False)
sketch8.addGeometry(Part.LineSegment(Vector(15.7, -1.5, 0), Vector(15.7, 1.5, 0)), False)
sketch8.addGeometry(Part.ArcOfCircle(Part.Circle(Vector(17, 0, 0), Vector(0, 0, 1), 2), math.radians(103), math.radians(131)), False)
sketch8.addGeometry(Part.LineSegment(Vector(16.6, 1.9, 0), Vector(17.5, 1.9, 0)), False)
sketch8.addConstraint(Sketcher.Constraint("Coincident", 0, 2, 1, 1))
sketch8.addConstraint(Sketcher.Constraint("Coincident", 1, 2, 2, 2))
sketch8.addConstraint(Sketcher.Constraint("Coincident", 2, 1, 3, 1))
sketch8.addConstraint(Sketcher.Constraint("Coincident", 3, 2, 4, 2))
sketch8.addConstraint(Sketcher.Constraint("Coincident", 4, 1, 5, 1))
sketch8.addConstraint(Sketcher.Constraint("Coincident", 5, 2, 0, 1))
sketch8.addConstraint(Sketcher.Constraint("Vertical", 0))
sketch8.addConstraint(Sketcher.Constraint("Horizontal", 1))
sketch8.addConstraint(Sketcher.Constraint("Vertical", 3))
sketch8.addConstraint(Sketcher.Constraint("Horizontal", 5))
sketch8.addConstraint(Sketcher.Constraint("Coincident", 4, 3, 2, 3))
sketch8.addConstraint(Sketcher.Constraint("Equal", 2, 4))
sketch8.addConstraint(Sketcher.Constraint("Symmetric", 1, 2, 4, 1, -1))
sketch8.addConstraint(Sketcher.Constraint("Radius", 2, 2.0))
sketch8.addConstraint(Sketcher.Constraint("DistanceY", 3, 1, 3, 2, 3.0))
sketch8.addConstraint(Sketcher.Constraint("DistanceY", 0, 2, 0, 1, 3.9))
sketch8.addConstraint(Sketcher.Constraint("DistanceX", -1, 1, 2, 3, 17.0))
sketch8.addConstraint(Sketcher.Constraint("DistanceX", -1, 1, 0, 2, 17.5))
sketch8.setExpression("Constraints[13]", "Params.sketch8_radius")
sketch8.setExpression("Constraints[14]", "Params.sketch8_height")
sketch8.setExpression("Constraints[15]", "Params.sketch8_height2")
pad4 = doc.addObject("PartDesign::Pad", "Pad003")
body2.addObject(pad4)
pad4.Profile = sketch8
pad4.Type = "TwoLengths"
pad4.setExpression("Length", "Params.pad4_length")
pad4.setExpression("Length2", "Params.pad4_length2")
pad4.Reversed = True

# Sketch on XY plane
sketch9 = doc.addObject("Sketcher::SketchObject", "Sketch008")
body2.addObject(sketch9)
sketch9.AttachmentSupport = (doc.getObject("XY_Plane001"), [""])
sketch9.MapMode = "FlatFace"
sketch9.AttachmentOffset = App.Placement(Vector(0, 0, -1.95), App.Rotation())
sketch9.addGeometry(Part.LineSegment(Vector(16.6, 9.4, 0), Vector(17.5, 9.4, 0)), False)
sketch9.addGeometry(Part.LineSegment(Vector(17.5, 9.4, 0), Vector(17.5, 10, 0)), False)
sketch9.addGeometry(Part.LineSegment(Vector(17.5, 10, 0), Vector(15.7, 10, 0)), False)
sketch9.addGeometry(Part.LineSegment(Vector(15.7, 10, 0), Vector(15.7, 9, 0)), False)
sketch9.addGeometry(Part.ArcOfCircle(Part.Circle(Vector(17, 7.5, 0), Vector(0, 0, 1), 2), math.radians(103), math.radians(131)), False)
sketch9.addGeometry(Part.LineSegment(Vector(15.7, 5, 0), Vector(17.5, 5, 0)), False)
sketch9.addGeometry(Part.LineSegment(Vector(17.5, 5, 0), Vector(17.5, 5.5, 0)), False)
sketch9.addGeometry(Part.LineSegment(Vector(17.5, 5.5, 0), Vector(16.6, 5.5, 0)), False)
sketch9.addGeometry(Part.ArcOfCircle(Part.Circle(Vector(17, 7.5, 0), Vector(0, 0, 1), 2), math.radians(-131), math.radians(-103)), False)
sketch9.addGeometry(Part.LineSegment(Vector(15.7, 6, 0), Vector(15.7, 5, 0)), False)
sketch9.addConstraint(Sketcher.Constraint("Coincident", 0, 2, 1, 1))
sketch9.addConstraint(Sketcher.Constraint("Coincident", 1, 2, 2, 1))
sketch9.addConstraint(Sketcher.Constraint("Coincident", 2, 2, 3, 1))
sketch9.addConstraint(Sketcher.Constraint("Coincident", 3, 2, 4, 2))
sketch9.addConstraint(Sketcher.Constraint("Coincident", 4, 1, 0, 1))
sketch9.addConstraint(Sketcher.Constraint("Coincident", 5, 2, 6, 1))
sketch9.addConstraint(Sketcher.Constraint("Coincident", 6, 2, 7, 1))
sketch9.addConstraint(Sketcher.Constraint("Coincident", 7, 2, 8, 2))
sketch9.addConstraint(Sketcher.Constraint("Coincident", 8, 1, 9, 1))
sketch9.addConstraint(Sketcher.Constraint("Coincident", 9, 2, 5, 1))
sketch9.addConstraint(Sketcher.Constraint("Horizontal", 0))
sketch9.addConstraint(Sketcher.Constraint("Vertical", 1))
sketch9.addConstraint(Sketcher.Constraint("Horizontal", 2))
sketch9.addConstraint(Sketcher.Constraint("Vertical", 3))
sketch9.addConstraint(Sketcher.Constraint("Horizontal", 5))
sketch9.addConstraint(Sketcher.Constraint("Vertical", 6))
sketch9.addConstraint(Sketcher.Constraint("Horizontal", 7))
sketch9.addConstraint(Sketcher.Constraint("Vertical", 9))
sketch9.addConstraint(Sketcher.Constraint("Coincident", 8, 3, 4, 3))
sketch9.addConstraint(Sketcher.Constraint("Equal", 4, 8))
sketch9.addConstraint(Sketcher.Constraint("Vertical", 1, 2, 5, 2))
sketch9.addConstraint(Sketcher.Constraint("Vertical", 4, 1, 7, 2))
sketch9.addConstraint(Sketcher.Constraint("Vertical", 3, 2, 8, 1))
sketch9.addConstraint(Sketcher.Constraint("Equal", 1, 6))
sketch9.addConstraint(Sketcher.Constraint("Radius", 4, 2.0))
sketch9.addConstraint(Sketcher.Constraint("DistanceY", 3, 2, 3, 1, 1.0))
sketch9.addConstraint(Sketcher.Constraint("DistanceX", -1, 1, 4, 3, 17.0))
sketch9.addConstraint(Sketcher.Constraint("DistanceY", -1, 1, 1, 2, 10.0))
sketch9.addConstraint(Sketcher.Constraint("DistanceY", -1, 1, 5, 2, 5.0))
sketch9.addConstraint(Sketcher.Constraint("DistanceY", 1, 1, 1, 2, 0.55))
sketch9.addConstraint(Sketcher.Constraint("DistanceX", -1, 1, 0, 2, 17.5))
sketch9.setExpression("Constraints[24]", "Params.sketch9_radius")
sketch9.setExpression("Constraints[25]", "Params.sketch9_height")
sketch9.setExpression("Constraints[29]", "Params.sketch9_height2")
pocket5 = doc.addObject("PartDesign::Pocket", "Pocket004")
body2.addObject(pocket5)
pocket5.Profile = sketch9
pocket5.setExpression("Length", "Params.pocket5_length")
pocket5.Reversed = True
doc.recompute()

fillet2 = doc.addObject("PartDesign::Fillet", "Fillet001")
body2.addObject(fillet2)
fillet2.Base = (pocket5, edges_at(pocket5, [
    (17.5, 7.5, 1.95),
    (17.5, 7.5, -1.95),
    (17.5, 9.45, 0),
    (17.5, 5.55, 0),
]))
fillet2.setExpression("Radius", "Params.fillet2_radius")

doc.recompute()
